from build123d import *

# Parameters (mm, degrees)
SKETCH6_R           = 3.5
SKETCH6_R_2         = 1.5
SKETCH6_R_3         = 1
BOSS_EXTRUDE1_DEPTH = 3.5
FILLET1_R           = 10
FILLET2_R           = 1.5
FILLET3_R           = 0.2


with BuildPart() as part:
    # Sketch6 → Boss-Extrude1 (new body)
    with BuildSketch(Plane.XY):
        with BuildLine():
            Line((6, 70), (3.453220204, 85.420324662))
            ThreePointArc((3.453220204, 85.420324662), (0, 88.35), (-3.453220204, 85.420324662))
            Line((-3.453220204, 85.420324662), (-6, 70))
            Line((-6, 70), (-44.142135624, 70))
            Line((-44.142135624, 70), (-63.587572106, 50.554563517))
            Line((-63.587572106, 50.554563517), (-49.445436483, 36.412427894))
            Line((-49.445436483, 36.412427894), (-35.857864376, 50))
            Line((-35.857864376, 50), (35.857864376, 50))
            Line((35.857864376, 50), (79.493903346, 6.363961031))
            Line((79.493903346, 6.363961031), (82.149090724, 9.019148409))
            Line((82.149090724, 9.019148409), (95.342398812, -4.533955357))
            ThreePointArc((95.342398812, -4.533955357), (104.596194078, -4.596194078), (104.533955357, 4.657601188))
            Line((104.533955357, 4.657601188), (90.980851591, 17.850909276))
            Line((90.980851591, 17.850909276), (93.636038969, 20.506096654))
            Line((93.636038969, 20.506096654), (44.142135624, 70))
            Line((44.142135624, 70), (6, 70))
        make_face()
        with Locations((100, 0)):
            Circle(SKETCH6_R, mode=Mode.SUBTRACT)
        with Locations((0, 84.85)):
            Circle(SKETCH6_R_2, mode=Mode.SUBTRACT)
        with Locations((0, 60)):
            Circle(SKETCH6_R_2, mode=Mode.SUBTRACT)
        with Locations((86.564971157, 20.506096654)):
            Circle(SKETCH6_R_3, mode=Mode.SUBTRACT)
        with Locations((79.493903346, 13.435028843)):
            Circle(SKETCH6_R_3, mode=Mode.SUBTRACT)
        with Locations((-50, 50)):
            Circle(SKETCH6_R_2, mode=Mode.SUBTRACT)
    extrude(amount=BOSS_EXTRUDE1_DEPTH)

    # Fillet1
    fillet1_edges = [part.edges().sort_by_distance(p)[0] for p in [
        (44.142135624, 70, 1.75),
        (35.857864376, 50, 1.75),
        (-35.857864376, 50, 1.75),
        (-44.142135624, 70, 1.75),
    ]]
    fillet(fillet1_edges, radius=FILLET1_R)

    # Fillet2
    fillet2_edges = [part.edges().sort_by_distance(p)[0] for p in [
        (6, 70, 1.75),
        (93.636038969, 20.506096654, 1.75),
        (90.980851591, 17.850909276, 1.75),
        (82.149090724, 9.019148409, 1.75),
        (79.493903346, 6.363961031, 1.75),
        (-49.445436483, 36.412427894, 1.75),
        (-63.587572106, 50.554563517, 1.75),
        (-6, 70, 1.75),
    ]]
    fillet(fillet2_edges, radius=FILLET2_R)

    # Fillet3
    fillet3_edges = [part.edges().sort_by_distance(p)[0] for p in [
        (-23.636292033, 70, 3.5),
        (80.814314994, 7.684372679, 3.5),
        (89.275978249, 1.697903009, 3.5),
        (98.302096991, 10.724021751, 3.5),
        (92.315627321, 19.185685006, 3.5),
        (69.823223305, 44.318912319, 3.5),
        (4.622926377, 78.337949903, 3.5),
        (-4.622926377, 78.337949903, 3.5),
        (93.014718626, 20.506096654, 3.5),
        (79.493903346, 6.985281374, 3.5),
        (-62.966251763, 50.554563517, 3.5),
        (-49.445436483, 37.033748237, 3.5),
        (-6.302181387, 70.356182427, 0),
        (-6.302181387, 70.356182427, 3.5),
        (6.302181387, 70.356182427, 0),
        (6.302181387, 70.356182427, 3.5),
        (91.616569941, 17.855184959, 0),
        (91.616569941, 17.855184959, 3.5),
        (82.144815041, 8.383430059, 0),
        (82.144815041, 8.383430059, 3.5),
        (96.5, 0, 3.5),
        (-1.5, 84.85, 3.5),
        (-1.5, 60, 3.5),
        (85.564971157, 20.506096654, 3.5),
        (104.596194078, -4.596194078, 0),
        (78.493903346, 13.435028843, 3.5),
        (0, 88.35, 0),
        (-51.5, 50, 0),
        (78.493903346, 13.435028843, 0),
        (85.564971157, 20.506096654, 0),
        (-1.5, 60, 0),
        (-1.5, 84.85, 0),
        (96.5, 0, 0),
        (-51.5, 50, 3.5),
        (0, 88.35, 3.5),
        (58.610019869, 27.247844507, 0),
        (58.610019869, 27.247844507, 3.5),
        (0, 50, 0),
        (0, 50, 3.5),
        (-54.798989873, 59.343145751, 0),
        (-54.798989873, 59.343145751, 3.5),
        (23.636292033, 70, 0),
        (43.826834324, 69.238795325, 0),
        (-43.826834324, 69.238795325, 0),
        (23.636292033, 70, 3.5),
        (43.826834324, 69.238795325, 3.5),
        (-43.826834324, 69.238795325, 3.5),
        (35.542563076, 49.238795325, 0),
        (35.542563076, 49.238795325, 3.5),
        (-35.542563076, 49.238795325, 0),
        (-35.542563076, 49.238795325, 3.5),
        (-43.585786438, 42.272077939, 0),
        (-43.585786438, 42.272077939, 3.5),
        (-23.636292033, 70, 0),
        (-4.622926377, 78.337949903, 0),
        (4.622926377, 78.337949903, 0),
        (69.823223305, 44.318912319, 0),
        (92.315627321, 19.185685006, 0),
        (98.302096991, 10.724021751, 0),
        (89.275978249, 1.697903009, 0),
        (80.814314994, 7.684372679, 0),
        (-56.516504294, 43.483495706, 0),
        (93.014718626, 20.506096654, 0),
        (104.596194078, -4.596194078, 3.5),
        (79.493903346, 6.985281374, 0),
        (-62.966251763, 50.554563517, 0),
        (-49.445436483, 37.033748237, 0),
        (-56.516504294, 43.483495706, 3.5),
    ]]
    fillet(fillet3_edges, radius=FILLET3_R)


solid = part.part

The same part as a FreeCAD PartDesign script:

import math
import FreeCAD as App
import Part
import Sketcher
from FreeCAD import Vector
Q = App.Units.Quantity


def edges_at(feature, points):
    """Names of the edges that pass closest to the given points."""
    edges = feature.Shape.Edges
    near = lambda p: min(range(len(edges)), key=lambda i: edges[i].distToShape(Part.Vertex(*p))[0])
    return sorted({f"Edge{near(p) + 1}" for p in points})

doc = App.newDocument("Part")
body = doc.addObject("PartDesign::Body", "Body")

# Sketch on XY plane
sketch1 = body.newObject("Sketcher::SketchObject", "Sketch")
sketch1.AttachmentSupport = (doc.getObject("XY_Plane"), [""])
sketch1.MapMode = "FlatFace"
sketch1.addGeometry(Part.LineSegment(Vector(6, 70, 0), Vector(3.5, 85.4, 0)), False)
sketch1.addGeometry(Part.ArcOfCircle(Part.Circle(Vector(0, 84.8, 0), Vector(0, 0, 1), 3.5), math.radians(9), math.radians(171)), False)
sketch1.addGeometry(Part.LineSegment(Vector(-3.5, 85.4, 0), Vector(-6, 70, 0)), False)
sketch1.addGeometry(Part.LineSegment(Vector(-6, 70, 0), Vector(-44.1, 70, 0)), False)
sketch1.addGeometry(Part.LineSegment(Vector(-44.1, 70, 0), Vector(-63.6, 50.6, 0)), False)
sketch1.addGeometry(Part.LineSegment(Vector(-63.6, 50.6, 0), Vector(-49.4, 36.4, 0)), False)
sketch1.addGeometry(Part.LineSegment(Vector(-49.4, 36.4, 0), Vector(-35.9, 50, 0)), False)
sketch1.addGeometry(Part.LineSegment(Vector(-35.9, 50, 0), Vector(35.9, 50, 0)), False)
sketch1.addGeometry(Part.LineSegment(Vector(35.9, 50, 0), Vector(79.5, 6.4, 0)), False)
sketch1.addGeometry(Part.LineSegment(Vector(79.5, 6.4, 0), Vector(82.1, 9, 0)), False)
sketch1.addGeometry(Part.LineSegment(Vector(82.1, 9, 0), Vector(95.3, -4.5, 0)), False)
sketch1.addGeometry(Part.ArcOfCircle(Part.Circle(Vector(100, 0, 0), Vector(0, 0, 1), 6.5), math.radians(-136), math.radians(46)), False)
sketch1.addGeometry(Part.LineSegment(Vector(104.5, 4.7, 0), Vector(91, 17.9, 0)), False)
sketch1.addGeometry(Part.LineSegment(Vector(91, 17.9, 0), Vector(93.6, 20.5, 0)), False)
sketch1.addGeometry(Part.LineSegment(Vector(93.6, 20.5, 0), Vector(44.1, 70, 0)), False)
sketch1.addGeometry(Part.LineSegment(Vector(44.1, 70, 0), Vector(6, 70, 0)), False)
sketch1.addGeometry(Part.Circle(Vector(100, 0, 0), Vector(0, 0, 1), 3.5), False)
sketch1.addGeometry(Part.Circle(Vector(79.5, 13.4, 0), Vector(0, 0, 1), 1), False)
sketch1.addGeometry(Part.Circle(Vector(86.6, 20.5, 0), Vector(0, 0, 1), 1), False)
sketch1.addGeometry(Part.Circle(Vector(-50, 50, 0), Vector(0, 0, 1), 1.5), False)
sketch1.addGeometry(Part.Circle(Vector(0, 60, 0), Vector(0, 0, 1), 1.5), False)
sketch1.addGeometry(Part.Circle(Vector(0, 84.8, 0), Vector(0, 0, 1), 1.5), False)
sketch1.addConstraint(Sketcher.Constraint("Tangent", 0, 2, 1, 1))
sketch1.addConstraint(Sketcher.Constraint("Tangent", 1, 2, 2, 1))
sketch1.addConstraint(Sketcher.Constraint("Coincident", 2, 2, 3, 1))
sketch1.addConstraint(Sketcher.Constraint("Coincident", 3, 2, 4, 1))
sketch1.addConstraint(Sketcher.Constraint("Coincident", 4, 2, 5, 1))
sketch1.addConstraint(Sketcher.Constraint("Coincident", 5, 2, 6, 1))
sketch1.addConstraint(Sketcher.Constraint("Coincident", 6, 2, 7, 1))
sketch1.addConstraint(Sketcher.Constraint("Coincident", 7, 2, 8, 1))
sketch1.addConstraint(Sketcher.Constraint("Coincident", 8, 2, 9, 1))
sketch1.addConstraint(Sketcher.Constraint("Coincident", 9, 2, 10, 1))
sketch1.addConstraint(Sketcher.Constraint("Tangent", 10, 2, 11, 1))
sketch1.addConstraint(Sketcher.Constraint("Tangent", 11, 2, 12, 1))
sketch1.addConstraint(Sketcher.Constraint("Coincident", 12, 2, 13, 1))
sketch1.addConstraint(Sketcher.Constraint("Coincident", 13, 2, 14, 1))
sketch1.addConstraint(Sketcher.Constraint("Coincident", 14, 2, 15, 1))
sketch1.addConstraint(Sketcher.Constraint("Coincident", 15, 2, 0, 1))
sketch1.addConstraint(Sketcher.Constraint("Horizontal", 3))
sketch1.addConstraint(Sketcher.Constraint("Horizontal", 7))
sketch1.addConstraint(Sketcher.Constraint("Horizontal", 15))
sketch1.addConstraint(Sketcher.Constraint("Coincident", 16, 3, 11, 3))
sketch1.addConstraint(Sketcher.Constraint("Coincident", 21, 3, 1, 3))
sketch1.addConstraint(Sketcher.Constraint("Equal", 1, 16))
sketch1.addConstraint(Sketcher.Constraint("Equal", 17, 18))
sketch1.addConstraint(Sketcher.Constraint("Equal", 19, 20))
sketch1.addConstraint(Sketcher.Constraint("Equal", 20, 21))
sketch1.addConstraint(Sketcher.Constraint("Symmetric", 0, 2, 1, 2, -2))
sketch1.addConstraint(Sketcher.Constraint("Symmetric", 3, 2, 14, 2, -2))
sketch1.addConstraint(Sketcher.Constraint("PointOnObject", 11, 3, -1))
sketch1.addConstraint(Sketcher.Constraint("PointOnObject", 20, 3, -2))
sketch1.addConstraint(Sketcher.Constraint("Perpendicular", 4, 5))
sketch1.addConstraint(Sketcher.Constraint("Perpendicular", 5, 6))
sketch1.addConstraint(Sketcher.Constraint("Perpendicular", 6, 8))
sketch1.addConstraint(Sketcher.Constraint("Perpendicular", 8, 9))
sketch1.addConstraint(Sketcher.Constraint("Parallel", 9, 13))
sketch1.addConstraint(Sketcher.Constraint("Perpendicular", 13, 14))
sketch1.addConstraint(Sketcher.Constraint("Horizontal", 19, 3, 6, 2))
sketch1.addConstraint(Sketcher.Constraint("Horizontal", 18, 3, 13, 2))
sketch1.addConstraint(Sketcher.Constraint("Vertical", 17, 3, 8, 2))
sketch1.addConstraint(Sketcher.Constraint("Equal", 10, 12))
sketch1.addConstraint(Sketcher.Constraint("Equal", 9, 13))
sketch1.addConstraint(Sketcher.Constraint("Diameter", 16, Q("7 mm")))
sketch1.addConstraint(Sketcher.Constraint("Diameter", 17, Q("2 mm")))
sketch1.addConstraint(Sketcher.Constraint("Diameter", 19, Q("3 mm")))
sketch1.addConstraint(Sketcher.Constraint("Radius", 11, Q("6.5 mm")))
sketch1.addConstraint(Sketcher.Constraint("Angle", 4, Q("-135 deg")))
sketch1.addConstraint(Sketcher.Constraint("Distance", 5, Q("20 mm")))
sketch1.addConstraint(Sketcher.Constraint("DistanceX", -1, 1, 11, 3, Q("100 mm")))
sketch1.addConstraint(Sketcher.Constraint("DistanceX", 19, 3, -1, 1, Q("50 mm")))
sketch1.addConstraint(Sketcher.Constraint("DistanceY", -1, 1, 19, 3, Q("50 mm")))
sketch1.addConstraint(Sketcher.Constraint("DistanceY", -1, 1, 20, 3, Q("60 mm")))
sketch1.addConstraint(Sketcher.Constraint("DistanceX", 2, 2, -1, 1, Q("6 mm")))
sketch1.addConstraint(Sketcher.Constraint("DistanceY", -1, 1, 2, 2, Q("70 mm")))
sketch1.addConstraint(Sketcher.Constraint("Distance", 4, Q("27.5 mm")))
sketch1.addConstraint(Sketcher.Constraint("DistanceY", -1, 1, 1, 3, Q("84.85 mm")))
sketch1.addConstraint(Sketcher.Constraint("DistanceX", 7, 1, 7, 2, Q("71.715729 mm")))
sketch1.addConstraint(Sketcher.Constraint("DistanceX", -1, 1, 10, 2, Q("95.342399 mm")))
sketch1.addConstraint(Sketcher.Constraint("Distance", 8, Q("61.710678 mm")))
sketch1.addConstraint(Sketcher.Constraint("Distance", 10, Q("18.91428 mm")))
sketch1.addConstraint(Sketcher.Constraint("DistanceY", -1, 1, 17, 3, Q("13.435029 mm")))
sketch1.addConstraint(Sketcher.Constraint("DistanceX", -1, 1, 18, 3, Q("86.564971 mm")))
pad1 = body.newObject("PartDesign::Pad", "Pad")
pad1.Profile = sketch1
pad1.Length = 3.5
doc.recompute()

fillet = body.newObject("PartDesign::Fillet", "Fillet")
fillet.Base = (pad1, edges_at(pad1, [
    (44.142, 70, 1.75),
    (35.858, 50, 1.75),
    (-35.858, 50, 1.75),
    (-44.142, 70, 1.75),
]))
fillet.Radius = 10
doc.recompute()

fillet2 = body.newObject("PartDesign::Fillet", "Fillet001")
fillet2.Base = (fillet, edges_at(fillet, [
    (6, 70, 1.75),
    (93.636, 20.506, 1.75),
    (90.981, 17.851, 1.75),
    (82.149, 9.019, 1.75),
    (79.494, 6.364, 1.75),
    (-49.445, 36.412, 1.75),
    (-63.588, 50.555, 1.75),
    (-6, 70, 1.75),
]))
fillet2.Radius = 1.5
doc.recompute()

fillet3 = body.newObject("PartDesign::Fillet", "Fillet002")
fillet3.Base = (fillet2, edges_at(fillet2, [
    (-23.636, 70, 3.5),
    (80.814, 7.684, 3.5),
    (89.276, 1.698, 3.5),
    (98.302, 10.724, 3.5),
    (92.316, 19.186, 3.5),
    (69.823, 44.319, 3.5),
    (4.623, 78.338, 3.5),
    (-4.623, 78.338, 3.5),
    (93.015, 20.506, 3.5),
    (79.494, 6.985, 3.5),
    (-62.966, 50.555, 3.5),
    (-49.445, 37.034, 3.5),
    (-6.302, 70.356, 0),
    (-6.302, 70.356, 3.5),
    (6.302, 70.356, 0),
    (6.302, 70.356, 3.5),
    (91.617, 17.855, 0),
    (91.617, 17.855, 3.5),
    (82.145, 8.383, 0),
    (82.145, 8.383, 3.5),
    (96.5, 0, 3.5),
    (-1.5, 84.85, 3.5),
    (-1.5, 60, 3.5),
    (85.565, 20.506, 3.5),
    (104.596, -4.596, 0),
    (78.494, 13.435, 3.5),
    (0, 88.35, 0),
    (-51.5, 50, 0),
    (78.494, 13.435, 0),
    (85.565, 20.506, 0),
    (-1.5, 60, 0),
    (-1.5, 84.85, 0),
    (96.5, 0, 0),
    (-51.5, 50, 3.5),
    (0, 88.35, 3.5),
    (58.61, 27.248, 0),
    (58.61, 27.248, 3.5),
    (0, 50, 0),
    (0, 50, 3.5),
    (-54.799, 59.343, 0),
    (-54.799, 59.343, 3.5),
    (23.636, 70, 0),
    (43.827, 69.239, 0),
    (-43.827, 69.239, 0),
    (23.636, 70, 3.5),
    (43.827, 69.239, 3.5),
    (-43.827, 69.239, 3.5),
    (35.543, 49.239, 0),
    (35.543, 49.239, 3.5),
    (-35.543, 49.239, 0),
    (-35.543, 49.239, 3.5),
    (-43.586, 42.272, 0),
    (-43.586, 42.272, 3.5),
    (-23.636, 70, 0),
    (-4.623, 78.338, 0),
    (4.623, 78.338, 0),
    (69.823, 44.319, 0),
    (92.316, 19.186, 0),
    (98.302, 10.724, 0),
    (89.276, 1.698, 0),
    (80.814, 7.684, 0),
    (-56.517, 43.483, 0),
    (93.015, 20.506, 0),
    (104.596, -4.596, 3.5),
    (79.494, 6.985, 0),
    (-62.966, 50.555, 0),
    (-49.445, 37.034, 0),
    (-56.517, 43.483, 3.5),
]))
fillet3.Radius = 0.2

doc.recompute()
